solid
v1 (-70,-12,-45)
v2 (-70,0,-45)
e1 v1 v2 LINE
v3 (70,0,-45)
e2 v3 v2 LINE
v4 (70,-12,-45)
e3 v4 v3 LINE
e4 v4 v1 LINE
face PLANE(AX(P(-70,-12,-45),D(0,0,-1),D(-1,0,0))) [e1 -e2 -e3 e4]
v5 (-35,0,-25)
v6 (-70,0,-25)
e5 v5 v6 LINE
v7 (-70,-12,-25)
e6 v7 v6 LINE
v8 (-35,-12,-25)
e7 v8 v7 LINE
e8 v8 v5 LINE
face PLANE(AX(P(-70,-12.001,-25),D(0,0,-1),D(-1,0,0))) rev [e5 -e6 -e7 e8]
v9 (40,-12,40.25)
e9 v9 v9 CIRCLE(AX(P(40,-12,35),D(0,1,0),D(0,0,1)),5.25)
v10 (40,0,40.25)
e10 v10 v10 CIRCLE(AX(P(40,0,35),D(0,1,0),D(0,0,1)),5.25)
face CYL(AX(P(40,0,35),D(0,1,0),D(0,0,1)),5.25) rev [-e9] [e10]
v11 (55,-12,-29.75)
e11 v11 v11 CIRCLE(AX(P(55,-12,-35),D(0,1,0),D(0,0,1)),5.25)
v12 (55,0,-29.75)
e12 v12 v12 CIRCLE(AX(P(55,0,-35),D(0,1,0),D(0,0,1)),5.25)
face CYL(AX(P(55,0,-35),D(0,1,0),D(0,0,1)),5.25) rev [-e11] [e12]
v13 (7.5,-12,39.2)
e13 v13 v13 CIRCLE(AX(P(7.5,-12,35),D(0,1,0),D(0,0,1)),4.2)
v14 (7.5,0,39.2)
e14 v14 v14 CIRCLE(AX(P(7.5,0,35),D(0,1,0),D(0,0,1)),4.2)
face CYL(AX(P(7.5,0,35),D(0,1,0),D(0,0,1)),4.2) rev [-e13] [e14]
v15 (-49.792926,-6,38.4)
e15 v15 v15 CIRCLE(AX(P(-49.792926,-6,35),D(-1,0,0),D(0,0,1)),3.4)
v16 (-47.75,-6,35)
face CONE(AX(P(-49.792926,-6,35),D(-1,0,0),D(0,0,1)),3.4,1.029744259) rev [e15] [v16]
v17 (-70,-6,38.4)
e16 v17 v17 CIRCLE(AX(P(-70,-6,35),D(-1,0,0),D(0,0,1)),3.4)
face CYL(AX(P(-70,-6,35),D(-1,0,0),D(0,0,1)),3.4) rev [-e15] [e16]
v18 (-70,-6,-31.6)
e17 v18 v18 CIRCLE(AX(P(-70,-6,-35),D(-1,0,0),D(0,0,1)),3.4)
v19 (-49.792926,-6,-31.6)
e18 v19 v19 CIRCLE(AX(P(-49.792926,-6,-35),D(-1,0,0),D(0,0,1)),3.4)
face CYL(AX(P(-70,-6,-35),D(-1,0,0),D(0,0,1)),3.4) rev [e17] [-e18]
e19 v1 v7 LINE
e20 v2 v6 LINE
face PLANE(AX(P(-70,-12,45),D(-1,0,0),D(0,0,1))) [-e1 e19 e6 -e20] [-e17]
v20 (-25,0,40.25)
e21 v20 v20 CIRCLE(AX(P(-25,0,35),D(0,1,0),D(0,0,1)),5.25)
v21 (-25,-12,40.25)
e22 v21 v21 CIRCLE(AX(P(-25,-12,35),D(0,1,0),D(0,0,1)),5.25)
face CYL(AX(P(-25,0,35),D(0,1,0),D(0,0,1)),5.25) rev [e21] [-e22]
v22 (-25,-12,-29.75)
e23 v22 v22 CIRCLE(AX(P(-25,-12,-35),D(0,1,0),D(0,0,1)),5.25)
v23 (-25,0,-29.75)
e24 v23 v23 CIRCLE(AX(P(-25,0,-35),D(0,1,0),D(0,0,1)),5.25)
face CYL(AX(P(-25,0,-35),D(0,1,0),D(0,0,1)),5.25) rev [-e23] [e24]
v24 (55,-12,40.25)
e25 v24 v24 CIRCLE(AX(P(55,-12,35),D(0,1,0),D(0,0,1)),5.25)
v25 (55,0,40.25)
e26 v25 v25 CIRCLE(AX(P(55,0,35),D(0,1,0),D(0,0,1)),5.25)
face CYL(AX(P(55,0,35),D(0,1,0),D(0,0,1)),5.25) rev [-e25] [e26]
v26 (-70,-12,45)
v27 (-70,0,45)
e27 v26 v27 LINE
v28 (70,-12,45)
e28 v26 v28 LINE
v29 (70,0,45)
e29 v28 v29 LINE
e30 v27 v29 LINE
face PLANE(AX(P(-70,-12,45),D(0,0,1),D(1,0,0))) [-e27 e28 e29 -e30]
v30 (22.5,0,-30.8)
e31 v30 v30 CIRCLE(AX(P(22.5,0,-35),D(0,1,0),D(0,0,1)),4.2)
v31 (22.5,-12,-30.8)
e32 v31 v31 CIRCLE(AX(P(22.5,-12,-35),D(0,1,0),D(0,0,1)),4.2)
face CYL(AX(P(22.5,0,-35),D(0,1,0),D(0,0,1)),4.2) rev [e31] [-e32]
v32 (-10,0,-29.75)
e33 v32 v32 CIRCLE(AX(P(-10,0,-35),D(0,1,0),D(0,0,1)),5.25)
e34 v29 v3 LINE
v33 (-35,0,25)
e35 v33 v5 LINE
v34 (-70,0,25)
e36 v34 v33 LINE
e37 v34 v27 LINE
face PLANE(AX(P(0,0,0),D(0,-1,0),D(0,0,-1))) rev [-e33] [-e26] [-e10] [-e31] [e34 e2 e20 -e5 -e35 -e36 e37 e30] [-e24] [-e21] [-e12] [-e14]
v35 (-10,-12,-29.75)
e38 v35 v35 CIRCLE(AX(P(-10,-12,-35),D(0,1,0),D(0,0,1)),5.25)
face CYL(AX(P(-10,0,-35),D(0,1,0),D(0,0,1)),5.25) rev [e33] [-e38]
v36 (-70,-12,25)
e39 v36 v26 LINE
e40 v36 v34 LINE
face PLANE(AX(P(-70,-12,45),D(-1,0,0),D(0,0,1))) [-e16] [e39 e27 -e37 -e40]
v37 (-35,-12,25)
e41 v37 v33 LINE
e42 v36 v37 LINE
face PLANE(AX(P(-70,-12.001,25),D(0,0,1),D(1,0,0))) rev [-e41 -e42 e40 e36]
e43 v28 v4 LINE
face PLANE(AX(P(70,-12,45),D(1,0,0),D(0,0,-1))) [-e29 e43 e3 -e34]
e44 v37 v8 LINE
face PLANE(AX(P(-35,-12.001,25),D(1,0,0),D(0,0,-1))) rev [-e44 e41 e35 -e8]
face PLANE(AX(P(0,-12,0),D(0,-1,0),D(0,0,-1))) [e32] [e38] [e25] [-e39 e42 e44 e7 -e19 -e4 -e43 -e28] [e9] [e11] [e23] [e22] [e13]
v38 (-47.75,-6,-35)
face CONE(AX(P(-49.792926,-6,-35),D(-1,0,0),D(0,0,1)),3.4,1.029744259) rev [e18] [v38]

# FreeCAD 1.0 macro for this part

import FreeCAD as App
import Part
import Sketcher

V = App.Vector
Q = App.Units.Quantity

doc = App.newDocument("Part")
body = doc.addObject("PartDesign::Body", "Body")

# Sketch on XZ plane
sketch1 = body.newObject("Sketcher::SketchObject", "Sketch")
sketch1.AttachmentSupport = (doc.getObject("XZ_Plane"), [""])
sketch1.MapMode = "FlatFace"
sketch1.addGeometry([
    Part.LineSegment(V(-70, -45, 0), V(-70, 45, 0)),
    Part.LineSegment(V(-70, 45, 0), V(70, 45, 0)),
    Part.LineSegment(V(70, 45, 0), V(70, -45, 0)),
    Part.LineSegment(V(70, -45, 0), V(-70, -45, 0)),
], False)
sketch1.addConstraint([
    Sketcher.Constraint("Coincident", 0, 2, 1, 1),
    Sketcher.Constraint("Coincident", 1, 2, 2, 1),
    Sketcher.Constraint("Coincident", 2, 2, 3, 1),
    Sketcher.Constraint("Coincident", 3, 2, 0, 1),
    Sketcher.Constraint("Vertical", 0),
    Sketcher.Constraint("Horizontal", 1),
    Sketcher.Constraint("Vertical", 2),
    Sketcher.Constraint("Horizontal", 3),
    Sketcher.Constraint("Symmetric", 0, 2, 2, 2, -1, 1),
    Sketcher.Constraint("DistanceX", 1, 1, 1, 2, Q("140 mm")),
    Sketcher.Constraint("DistanceY", 0, 1, 0, 2, Q("90 mm")),
])
pad1 = body.newObject("PartDesign::Pad", "Pad")
pad1.Profile = sketch1
pad1.Length = 12

# Sketch on XZ plane
sketch2 = body.newObject("Sketcher::SketchObject", "Sketch001")
sketch2.AttachmentSupport = (doc.getObject("XZ_Plane"), [""])
sketch2.MapMode = "FlatFace"
sketch2.addGeometry([
    Part.LineSegment(V(-70, -25, 0), V(-70, 25, 0)),
    Part.LineSegment(V(-70, 25, 0), V(-35, 25, 0)),
    Part.LineSegment(V(-35, 25, 0), V(-35, -25, 0)),
    Part.LineSegment(V(-35, -25, 0), V(-70, -25, 0)),
], False)
sketch2.addConstraint([
    Sketcher.Constraint("Coincident", 0, 2, 1, 1),
    Sketcher.Constraint("Coincident", 1, 2, 2, 1),
    Sketcher.Constraint("Coincident", 2, 2, 3, 1),
    Sketcher.Constraint("Coincident", 3, 2, 0, 1),
    Sketcher.Constraint("Vertical", 0),
    Sketcher.Constraint("Horizontal", 1),
    Sketcher.Constraint("Vertical", 2),
    Sketcher.Constraint("Horizontal", 3),
    Sketcher.Constraint("DistanceX", 1, 1, 1, 2, Q("35 mm")),
    Sketcher.Constraint("DistanceY", 0, 1, 0, 2, Q("50 mm")),
    Sketcher.Constraint("DistanceX", 0, 2, -1, 1, Q("70 mm")),
    Sketcher.Constraint("DistanceY", -1, 1, 0, 2, Q("25 mm")),
])
pocket1 = body.newObject("PartDesign::Pocket", "Pocket")
pocket1.Profile = sketch2
pocket1.Type = "UpToFirst"
pocket1.Reversed = True

# Sketch on XZ plane
sketch3 = body.newObject("Sketcher::SketchObject", "Sketch002")
sketch3.AttachmentSupport = (doc.getObject("XZ_Plane"), [""])
sketch3.MapMode = "FlatFace"
sketch3.addGeometry([
    Part.Circle(V(-10, -35, 0), V(0, 0, 1), 5),
    Part.Circle(V(55, -35, 0), V(0, 0, 1), 5),
    Part.Circle(V(40, 35, 0), V(0, 0, 1), 5),
    Part.Circle(V(-25, 35, 0), V(0, 0, 1), 5),
], False)
sketch3.addConstraint([
    Sketcher.Constraint("Equal", 0, 1),
    Sketcher.Constraint("Equal", 1, 2),
    Sketcher.Constraint("Equal", 2, 3),
    Sketcher.Constraint("Horizontal", 0, 3, 1, 3),
    Sketcher.Constraint("Horizontal", 2, 3, 3, 3),
    Sketcher.Constraint("Diameter", 0, Q("10.5 mm")),
    Sketcher.Constraint("DistanceX", 0, 3, -1, 1, Q("10 mm")),
    Sketcher.Constraint("DistanceY", 0, 3, -1, 1, Q("35 mm")),
    Sketcher.Constraint("DistanceX", -1, 1, 1, 3, Q("55 mm")),
    Sketcher.Constraint("DistanceX", -1, 1, 2, 3, Q("40 mm")),
    Sketcher.Constraint("DistanceY", -1, 1, 2, 3, Q("35 mm")),
    Sketcher.Constraint("DistanceX", 3, 3, -1, 1, Q("25 mm")),
])
doc.recompute()
hole = body.newObject("PartDesign::Hole", "Hole")
hole.Profile = sketch3
hole.ThreadType = "None"
hole.Diameter = 10.5
hole.DepthType = "ThroughAll"
hole.Reversed = True

# Sketch on XZ plane
sketch4 = body.newObject("Sketcher::SketchObject", "Sketch003")
sketch4.AttachmentSupport = (doc.getObject("XZ_Plane"), [""])
sketch4.MapMode = "FlatFace"
sketch4.addGeometry([
    Part.Circle(V(-25, -35, 0), V(0, 0, 1), 5),
    Part.Circle(V(55, 35, 0), V(0, 0, 1), 5),
], False)
sketch4.addConstraint([
    Sketcher.Constraint("Equal", 0, 1),
    Sketcher.Constraint("Diameter", 0, Q("10.5 mm")),
    Sketcher.Constraint("DistanceX", 0, 3, -1, 1, Q("25 mm")),
    Sketcher.Constraint("DistanceY", 0, 3, -1, 1, Q("35 mm")),
    Sketcher.Constraint("DistanceX", -1, 1, 1, 3, Q("55 mm")),
    Sketcher.Constraint("DistanceY", -1, 1, 1, 3, Q("35 mm")),
])
doc.recompute()
hole2 = body.newObject("PartDesign::Hole", "Hole001")
hole2.Profile = sketch4
hole2.ThreadType = "None"
hole2.Diameter = 10.5
hole2.DepthType = "ThroughAll"
hole2.Reversed = True

# Sketch on YZ plane
sketch5 = body.newObject("Sketcher::SketchObject", "Sketch004")
sketch5.AttachmentSupport = (doc.getObject("YZ_Plane"), [""])
sketch5.MapMode = "FlatFace"
sketch5.AttachmentOffset = App.Placement(V(0, 0, -70), App.Rotation())
sketch5.addGeometry([
    Part.Circle(V(-6, 35, 0), V(0, 0, 1), 3.4),
    Part.Circle(V(-6, -35, 0), V(0, 0, 1), 3.4),
], False)
sketch5.addConstraint([
    Sketcher.Constraint("Equal", 0, 1),
    Sketcher.Constraint("Symmetric", 0, 3, 1, 3, -1),
    Sketcher.Constraint("Diameter", 0, Q("6.8 mm")),
    Sketcher.Constraint("DistanceX", 0, 3, -1, 1, Q("6 mm")),
    Sketcher.Constraint("DistanceY", -1, 1, 0, 3, Q("35 mm")),
])
doc.recompute()
hole3 = body.newObject("PartDesign::Hole", "Hole002")
hole3.Profile = sketch5
hole3.ThreadType = "None"
hole3.Diameter = 6.8
hole3.DepthType = "Dimension"
hole3.Depth = 20.207074
hole3.DrillPoint = "Angled"
hole3.DrillPointAngle = 118
hole3.Reversed = True

# Sketch on XZ plane
sketch6 = body.newObject("Sketcher::SketchObject", "Sketch005")
sketch6.AttachmentSupport = (doc.getObject("XZ_Plane"), [""])
sketch6.MapMode = "FlatFace"
sketch6.addGeometry([
    Part.Circle(V(22.5, -35, 0), V(0, 0, 1), 4.2),
    Part.Circle(V(7.5, 35, 0), V(0, 0, 1), 4.2),
], False)
sketch6.addConstraint([
    Sketcher.Constraint("Equal", 0, 1),
    Sketcher.Constraint("Diameter", 0, Q("8.4 mm")),
    Sketcher.Constraint("DistanceY", 0, 3, -1, 1, Q("35 mm")),
    Sketcher.Constraint("DistanceY", -1, 1, 1, 3, Q("35 mm")),
    Sketcher.Constraint("DistanceX", 1, 3, 0, 3, Q("15 mm")),
    Sketcher.Constraint("DistanceX", -1, 1, 0, 3, Q("22.5 mm")),
])
doc.recompute()
hole4 = body.newObject("PartDesign::Hole", "Hole003")
hole4.Profile = sketch6
hole4.ThreadType = "None"
hole4.Diameter = 8.4
hole4.DepthType = "ThroughAll"
hole4.Reversed = True

doc.recompute()
